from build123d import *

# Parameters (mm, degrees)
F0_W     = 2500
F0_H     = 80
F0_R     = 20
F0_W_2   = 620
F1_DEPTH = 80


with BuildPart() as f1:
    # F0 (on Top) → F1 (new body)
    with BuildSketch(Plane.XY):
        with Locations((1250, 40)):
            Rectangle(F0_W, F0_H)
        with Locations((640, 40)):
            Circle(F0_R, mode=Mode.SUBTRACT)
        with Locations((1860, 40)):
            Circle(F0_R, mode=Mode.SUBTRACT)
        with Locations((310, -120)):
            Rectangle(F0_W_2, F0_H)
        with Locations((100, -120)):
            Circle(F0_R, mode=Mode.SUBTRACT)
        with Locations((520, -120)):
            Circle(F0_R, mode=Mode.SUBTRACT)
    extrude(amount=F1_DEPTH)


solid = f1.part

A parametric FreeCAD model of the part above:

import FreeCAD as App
import Part
import Sketcher
Q = App.Units.Quantity


def add_polygon(sketch, points):
    """Adds a closed chain of lines whose ends are joined by coincident constraints."""
    first, n = sketch.GeometryCount, len(points)
    for a, b in zip(points, points[1:] + points[:1]):
        sketch.addGeometry(Part.LineSegment(App.Vector(*a, 0), App.Vector(*b, 0)), False)
    for i in range(n):
        sketch.addConstraint(Sketcher.Constraint("Coincident", first + i, 2, first + (i + 1) % n, 1))

doc = App.newDocument("Part")
body = doc.addObject("PartDesign::Body", "Body")
body.AllowCompound = True

# Sketch on XY plane
sketch1 = body.newObject("Sketcher::SketchObject", "Sketch")
sketch1.AttachmentSupport = (doc.getObject("XY_Plane"), [""])
sketch1.MapMode = "FlatFace"
add_polygon(sketch1, [(0, 80), (0, 0), (2500, 0), (2500, 80)])  # lines 0-3
sketch1.addGeometry(Part.Circle(App.Vector(640, 40, 0), App.Vector(0, 0, 1), 20), False)  # 4
sketch1.addGeometry(Part.Circle(App.Vector(1860, 40, 0), App.Vector(0, 0, 1), 20), False)  # 5
add_polygon(sketch1, [(0, -80), (0, -160), (620, -160), (620, -80)])  # lines 6-9
sketch1.addGeometry(Part.Circle(App.Vector(100, -120, 0), App.Vector(0, 0, 1), 20), False)  # 10
sketch1.addGeometry(Part.Circle(App.Vector(520, -120, 0), App.Vector(0, 0, 1), 20), False)  # 11
sketch1.addConstraint([
    Sketcher.Constraint("Vertical", 0),
    Sketcher.Constraint("Horizontal", 1),
    Sketcher.Constraint("Vertical", 2),
    Sketcher.Constraint("Horizontal", 3),
    Sketcher.Constraint("Vertical", 6),
    Sketcher.Constraint("Horizontal", 7),
    Sketcher.Constraint("Vertical", 8),
    Sketcher.Constraint("Horizontal", 9),
    Sketcher.Constraint("Coincident", 0, 2, -1, 1),
    Sketcher.Constraint("Equal", 4, 5),
    Sketcher.Constraint("Equal", 5, 10),
    Sketcher.Constraint("Equal", 10, 11),
    Sketcher.Constraint("Symmetric", 3, 2, 9, 2, -1, 1),
    Sketcher.Constraint("Horizontal", 4, 3, 5, 3),
    Sketcher.Constraint("Horizontal", 10, 3, 11, 3),
    Sketcher.Constraint("Equal", 2, 6),
    Sketcher.Constraint("Diameter", 4, Q("40 mm")),
    Sketcher.Constraint("DistanceX", 1, 1, 1, 2, Q("2500 mm")),
    Sketcher.Constraint("DistanceX", 7, 1, 7, 2, Q("620 mm")),
    Sketcher.Constraint("DistanceY", 0, 2, 0, 1, Q("80 mm")),
    Sketcher.Constraint("DistanceX", -1, 1, 4, 3, Q("640 mm")),
    Sketcher.Constraint("DistanceY", -1, 1, 4, 3, Q("40 mm")),
    Sketcher.Constraint("DistanceX", -1, 1, 5, 3, Q("1860 mm")),
    Sketcher.Constraint("DistanceX", -1, 1, 10, 3, Q("100 mm")),
    Sketcher.Constraint("DistanceY", 10, 3, -1, 1, Q("120 mm")),
    Sketcher.Constraint("DistanceX", -1, 1, 11, 3, Q("520 mm")),
])
pad1 = body.newObject("PartDesign::Pad", "Pad")
pad1.Profile = sketch1
pad1.Length = 80

doc.recompute()
